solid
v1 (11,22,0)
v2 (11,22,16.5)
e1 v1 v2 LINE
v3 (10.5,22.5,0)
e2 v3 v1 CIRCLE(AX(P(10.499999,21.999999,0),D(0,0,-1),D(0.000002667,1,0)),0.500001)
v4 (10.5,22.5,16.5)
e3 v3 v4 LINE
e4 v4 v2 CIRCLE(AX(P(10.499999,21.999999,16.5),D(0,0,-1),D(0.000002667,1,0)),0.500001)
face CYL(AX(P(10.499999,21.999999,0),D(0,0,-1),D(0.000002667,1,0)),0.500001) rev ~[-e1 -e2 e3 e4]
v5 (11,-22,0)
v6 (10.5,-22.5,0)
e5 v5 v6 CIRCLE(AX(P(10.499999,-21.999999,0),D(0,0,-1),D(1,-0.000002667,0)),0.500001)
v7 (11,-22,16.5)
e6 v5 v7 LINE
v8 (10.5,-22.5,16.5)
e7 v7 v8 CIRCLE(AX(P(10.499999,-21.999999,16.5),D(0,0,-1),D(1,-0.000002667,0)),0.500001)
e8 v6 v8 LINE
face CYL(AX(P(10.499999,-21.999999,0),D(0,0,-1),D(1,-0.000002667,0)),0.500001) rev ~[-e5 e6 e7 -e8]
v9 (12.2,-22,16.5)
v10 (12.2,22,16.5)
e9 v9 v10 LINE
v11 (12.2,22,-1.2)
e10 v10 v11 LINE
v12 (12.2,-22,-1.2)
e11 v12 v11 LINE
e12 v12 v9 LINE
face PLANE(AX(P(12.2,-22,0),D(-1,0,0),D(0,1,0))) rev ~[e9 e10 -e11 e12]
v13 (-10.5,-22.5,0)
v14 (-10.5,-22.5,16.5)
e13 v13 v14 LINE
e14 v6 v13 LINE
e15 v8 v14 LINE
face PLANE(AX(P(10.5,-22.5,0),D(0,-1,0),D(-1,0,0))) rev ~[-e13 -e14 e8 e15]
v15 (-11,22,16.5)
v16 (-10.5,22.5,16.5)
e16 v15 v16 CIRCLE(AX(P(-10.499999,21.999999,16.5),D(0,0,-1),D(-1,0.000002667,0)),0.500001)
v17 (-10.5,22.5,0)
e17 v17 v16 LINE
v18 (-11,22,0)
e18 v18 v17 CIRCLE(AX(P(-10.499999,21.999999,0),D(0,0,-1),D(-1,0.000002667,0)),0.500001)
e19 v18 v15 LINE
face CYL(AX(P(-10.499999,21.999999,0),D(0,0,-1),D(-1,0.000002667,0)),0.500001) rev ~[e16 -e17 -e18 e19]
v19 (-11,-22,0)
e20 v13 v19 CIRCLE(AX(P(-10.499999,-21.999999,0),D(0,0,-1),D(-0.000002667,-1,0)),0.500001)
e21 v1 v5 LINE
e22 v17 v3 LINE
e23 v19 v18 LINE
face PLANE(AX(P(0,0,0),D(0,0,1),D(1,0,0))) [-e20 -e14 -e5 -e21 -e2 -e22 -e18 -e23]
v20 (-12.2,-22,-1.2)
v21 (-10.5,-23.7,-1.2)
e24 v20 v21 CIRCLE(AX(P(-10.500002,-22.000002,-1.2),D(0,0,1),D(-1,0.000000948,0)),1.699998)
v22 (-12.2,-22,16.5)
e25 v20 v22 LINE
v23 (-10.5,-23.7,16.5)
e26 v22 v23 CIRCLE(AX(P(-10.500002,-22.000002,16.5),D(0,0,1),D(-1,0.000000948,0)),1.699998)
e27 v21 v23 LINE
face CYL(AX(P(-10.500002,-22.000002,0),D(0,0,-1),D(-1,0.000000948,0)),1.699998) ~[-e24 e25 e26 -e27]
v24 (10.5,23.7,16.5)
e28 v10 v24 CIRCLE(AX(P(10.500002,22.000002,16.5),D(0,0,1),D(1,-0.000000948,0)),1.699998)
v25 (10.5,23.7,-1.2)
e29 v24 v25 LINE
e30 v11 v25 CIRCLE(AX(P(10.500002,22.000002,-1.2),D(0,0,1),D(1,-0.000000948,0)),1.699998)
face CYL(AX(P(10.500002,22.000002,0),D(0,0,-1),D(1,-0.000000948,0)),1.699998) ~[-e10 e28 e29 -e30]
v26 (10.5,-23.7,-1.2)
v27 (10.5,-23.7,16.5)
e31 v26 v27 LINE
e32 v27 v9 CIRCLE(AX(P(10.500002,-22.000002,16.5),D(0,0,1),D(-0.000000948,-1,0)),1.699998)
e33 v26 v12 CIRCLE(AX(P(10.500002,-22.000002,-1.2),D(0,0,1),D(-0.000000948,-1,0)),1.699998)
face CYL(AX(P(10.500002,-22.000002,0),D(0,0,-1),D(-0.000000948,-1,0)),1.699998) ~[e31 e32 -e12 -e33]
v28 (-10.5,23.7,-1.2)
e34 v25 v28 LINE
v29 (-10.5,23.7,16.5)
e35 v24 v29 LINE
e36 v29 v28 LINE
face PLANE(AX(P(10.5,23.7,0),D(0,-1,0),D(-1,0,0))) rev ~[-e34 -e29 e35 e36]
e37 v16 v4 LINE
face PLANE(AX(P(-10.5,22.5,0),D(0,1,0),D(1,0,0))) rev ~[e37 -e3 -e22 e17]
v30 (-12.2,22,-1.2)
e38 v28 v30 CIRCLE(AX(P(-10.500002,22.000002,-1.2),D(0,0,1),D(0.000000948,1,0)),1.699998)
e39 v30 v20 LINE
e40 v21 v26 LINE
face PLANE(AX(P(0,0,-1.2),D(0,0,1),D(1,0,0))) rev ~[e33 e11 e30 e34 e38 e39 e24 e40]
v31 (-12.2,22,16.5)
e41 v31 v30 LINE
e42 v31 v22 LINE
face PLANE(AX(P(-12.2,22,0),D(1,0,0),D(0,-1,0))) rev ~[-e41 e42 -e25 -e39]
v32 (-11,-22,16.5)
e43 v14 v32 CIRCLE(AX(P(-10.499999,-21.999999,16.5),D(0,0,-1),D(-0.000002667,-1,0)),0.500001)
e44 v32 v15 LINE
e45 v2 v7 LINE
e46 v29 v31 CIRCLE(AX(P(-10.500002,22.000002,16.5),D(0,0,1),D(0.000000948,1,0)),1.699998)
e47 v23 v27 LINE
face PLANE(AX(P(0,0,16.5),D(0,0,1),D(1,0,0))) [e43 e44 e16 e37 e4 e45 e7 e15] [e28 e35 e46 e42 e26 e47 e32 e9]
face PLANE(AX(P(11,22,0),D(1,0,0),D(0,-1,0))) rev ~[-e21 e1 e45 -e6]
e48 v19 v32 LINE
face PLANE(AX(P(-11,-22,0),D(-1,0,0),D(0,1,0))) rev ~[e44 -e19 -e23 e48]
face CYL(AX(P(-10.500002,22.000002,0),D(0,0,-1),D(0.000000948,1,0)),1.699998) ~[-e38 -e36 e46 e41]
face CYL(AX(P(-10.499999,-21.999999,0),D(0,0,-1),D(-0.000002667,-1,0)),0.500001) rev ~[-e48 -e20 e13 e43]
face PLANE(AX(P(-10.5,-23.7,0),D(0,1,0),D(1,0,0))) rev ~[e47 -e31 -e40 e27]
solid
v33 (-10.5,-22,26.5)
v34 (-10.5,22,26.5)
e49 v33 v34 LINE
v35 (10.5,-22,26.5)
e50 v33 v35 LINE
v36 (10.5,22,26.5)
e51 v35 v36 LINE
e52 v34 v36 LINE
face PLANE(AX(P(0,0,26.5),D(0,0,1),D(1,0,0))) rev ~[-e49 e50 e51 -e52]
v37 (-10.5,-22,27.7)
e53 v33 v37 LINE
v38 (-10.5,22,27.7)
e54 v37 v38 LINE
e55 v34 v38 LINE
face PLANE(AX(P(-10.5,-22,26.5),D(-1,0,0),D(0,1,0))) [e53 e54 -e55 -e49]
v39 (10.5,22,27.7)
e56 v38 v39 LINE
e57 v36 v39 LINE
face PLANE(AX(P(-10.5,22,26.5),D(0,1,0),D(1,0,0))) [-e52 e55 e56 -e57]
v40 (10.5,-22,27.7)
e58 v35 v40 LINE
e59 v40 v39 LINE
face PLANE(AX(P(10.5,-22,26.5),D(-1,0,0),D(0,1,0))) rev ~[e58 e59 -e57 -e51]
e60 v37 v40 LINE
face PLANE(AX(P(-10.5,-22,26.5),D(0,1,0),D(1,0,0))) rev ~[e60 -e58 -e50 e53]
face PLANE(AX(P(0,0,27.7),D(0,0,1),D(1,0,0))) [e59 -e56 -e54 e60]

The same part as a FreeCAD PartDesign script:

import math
import FreeCAD as App
import Part
import Sketcher

V = App.Vector
Q = App.Units.Quantity


def add_polygon(sketch, points):
    """Adds a closed chain of lines whose ends are joined by coincident constraints."""
    first, n = sketch.GeometryCount, len(points)
    for a, b in zip(points, points[1:] + points[:1]):
        sketch.addGeometry(Part.LineSegment(App.Vector(*a, 0), App.Vector(*b, 0)), False)
    for i in range(n):
        sketch.addConstraint(Sketcher.Constraint("Coincident", first + i, 2, first + (i + 1) % n, 1))

doc = App.newDocument("Part")
body = doc.addObject("PartDesign::Body", "Body")

sketch1 = doc.addObject("Sketcher::SketchObject", "Sketch")
body.addObject(sketch1)
sketch1.AttachmentSupport = (doc.XY_Plane, [""])
sketch1.MapMode = "FlatFace"
sketch1.addGeometry([
    Part.LineSegment(V(-12.2, 22, 0), V(-12.2, -22, 0)),
    Part.ArcOfCircle(Part.Circle(V(-10.5, -22, 0), V(0, 0, 1), 1.7), math.radians(180), math.radians(270)),
    Part.LineSegment(V(-10.5, -23.7, 0), V(10.5, -23.7, 0)),
    Part.ArcOfCircle(Part.Circle(V(10.5, -22, 0), V(0, 0, 1), 1.7), math.radians(-90), math.radians(0)),
    Part.LineSegment(V(12.2, -22, 0), V(12.2, 22, 0)),
    Part.ArcOfCircle(Part.Circle(V(10.5, 22, 0), V(0, 0, 1), 1.7), math.radians(0), math.radians(90)),
    Part.LineSegment(V(10.5, 23.7, 0), V(-10.5, 23.7, 0)),
    Part.ArcOfCircle(Part.Circle(V(-10.5, 22, 0), V(0, 0, 1), 1.7), math.radians(90), math.radians(180)),
], False)
sketch1.addConstraint([
    Sketcher.Constraint("Tangent", 0, 2, 1, 1),
    Sketcher.Constraint("Tangent", 1, 2, 2, 1),
    Sketcher.Constraint("Tangent", 2, 2, 3, 1),
    Sketcher.Constraint("Tangent", 3, 2, 4, 1),
    Sketcher.Constraint("Tangent", 4, 2, 5, 1),
    Sketcher.Constraint("Tangent", 5, 2, 6, 1),
    Sketcher.Constraint("Tangent", 6, 2, 7, 1),
    Sketcher.Constraint("Tangent", 7, 2, 0, 1),
    Sketcher.Constraint("Vertical", 0),
    Sketcher.Constraint("Horizontal", 2),
    Sketcher.Constraint("Vertical", 4),
    Sketcher.Constraint("Horizontal", 6),
    Sketcher.Constraint("Equal", 1, 3),
    Sketcher.Constraint("Equal", 3, 5),
    Sketcher.Constraint("Equal", 5, 7),
    Sketcher.Constraint("Symmetric", 1, 3, 5, 3, -1, 1),
    Sketcher.Constraint("Radius", 1, Q("1.699998 mm")),
    Sketcher.Constraint("DistanceX", 2, 1, 2, 2, Q("21 mm")),
    Sketcher.Constraint("DistanceY", 0, 2, 0, 1, Q("44 mm")),
])
pad1 = doc.addObject("PartDesign::Pad", "Pad")
body.addObject(pad1)
pad1.Profile = sketch1
pad1.Length = 1.2
pad1.Reversed = True

sketch2 = doc.addObject("Sketcher::SketchObject", "Sketch001")
body.addObject(sketch2)
sketch2.AttachmentSupport = (doc.XY_Plane, [""])
sketch2.MapMode = "FlatFace"
sketch2.addGeometry([
    Part.LineSegment(V(-12.2, 22, 0), V(-12.2, -22, 0)),
    Part.ArcOfCircle(Part.Circle(V(-10.5, -22, 0), V(0, 0, 1), 1.7), math.radians(180), math.radians(270)),
    Part.LineSegment(V(-10.5, -23.7, 0), V(10.5, -23.7, 0)),
    Part.ArcOfCircle(Part.Circle(V(10.5, -22, 0), V(0, 0, 1), 1.7), math.radians(-90), math.radians(0)),
    Part.LineSegment(V(12.2, -22, 0), V(12.2, 22, 0)),
    Part.ArcOfCircle(Part.Circle(V(10.5, 22, 0), V(0, 0, 1), 1.7), math.radians(0), math.radians(90)),
    Part.LineSegment(V(10.5, 23.7, 0), V(-10.5, 23.7, 0)),
    Part.ArcOfCircle(Part.Circle(V(-10.5, 22, 0), V(0, 0, 1), 1.7), math.radians(90), math.radians(180)),
    Part.LineSegment(V(11, 22, 0), V(11, -22, 0)),
    Part.ArcOfCircle(Part.Circle(V(10.5, -22, 0), V(0, 0, 1), 0.5), math.radians(-90), math.radians(0)),
    Part.LineSegment(V(10.5, -22.5, 0), V(-10.5, -22.5, 0)),
    Part.ArcOfCircle(Part.Circle(V(-10.5, -22, 0), V(0, 0, 1), 0.5), math.radians(-180), math.radians(-90)),
    Part.LineSegment(V(-11, -22, 0), V(-11, 22, 0)),
    Part.ArcOfCircle(Part.Circle(V(-10.5, 22, 0), V(0, 0, 1), 0.5), math.radians(90), math.radians(180)),
    Part.LineSegment(V(-10.5, 22.5, 0), V(10.5, 22.5, 0)),
    Part.ArcOfCircle(Part.Circle(V(10.5, 22, 0), V(0, 0, 1), 0.5), math.radians(0), math.radians(90)),
], False)
sketch2.addConstraint([
    Sketcher.Constraint("Tangent", 0, 2, 1, 1),
    Sketcher.Constraint("Tangent", 1, 2, 2, 1),
    Sketcher.Constraint("Tangent", 2, 2, 3, 1),
    Sketcher.Constraint("Tangent", 3, 2, 4, 1),
    Sketcher.Constraint("Tangent", 4, 2, 5, 1),
    Sketcher.Constraint("Tangent", 5, 2, 6, 1),
    Sketcher.Constraint("Tangent", 6, 2, 7, 1),
    Sketcher.Constraint("Tangent", 7, 2, 0, 1),
    Sketcher.Constraint("Coincident", 8, 2, 9, 2),
    Sketcher.Constraint("Coincident", 9, 1, 10, 1),
    Sketcher.Constraint("Coincident", 10, 2, 11, 2),
    Sketcher.Constraint("Coincident", 11, 1, 12, 1),
    Sketcher.Constraint("Coincident", 12, 2, 13, 2),
    Sketcher.Constraint("Coincident", 13, 1, 14, 1),
    Sketcher.Constraint("Coincident", 14, 2, 15, 2),
    Sketcher.Constraint("Coincident", 15, 1, 8, 1),
    Sketcher.Constraint("Vertical", 0),
    Sketcher.Constraint("Horizontal", 2),
    Sketcher.Constraint("Vertical", 4),
    Sketcher.Constraint("Horizontal", 6),
    Sketcher.Constraint("Vertical", 8),
    Sketcher.Constraint("Horizontal", 10),
    Sketcher.Constraint("Vertical", 12),
    Sketcher.Constraint("Horizontal", 14),
    Sketcher.Constraint("Coincident", 9, 3, 3, 3),
    Sketcher.Constraint("Coincident", 11, 3, 1, 3),
    Sketcher.Constraint("Coincident", 13, 3, 7, 3),
    Sketcher.Constraint("Equal", 1, 3),
    Sketcher.Constraint("Equal", 3, 5),
    Sketcher.Constraint("Equal", 5, 7),
    Sketcher.Constraint("Equal", 13, 15),
    Sketcher.Constraint("Symmetric", 1, 3, 5, 3, -1, 1),
    Sketcher.Constraint("Horizontal", 3, 2, 8, 2),
    Sketcher.Constraint("Horizontal", 8, 2, 11, 1),
    Sketcher.Constraint("Horizontal", 7, 2, 12, 2),
    Sketcher.Constraint("Horizontal", 12, 2, 15, 1),
    Sketcher.Constraint("Vertical", 5, 2, 9, 1),
    Sketcher.Constraint("Vertical", 6, 2, 10, 2),
    Sketcher.Constraint("Vertical", 10, 2, 13, 1),
    Sketcher.Constraint("Vertical", 9, 1, 14, 2),
    Sketcher.Constraint("Radius", 1, Q("1.699998 mm")),
    Sketcher.Constraint("Radius", 9, Q("0.500001 mm")),
    Sketcher.Constraint("DistanceX", 2, 1, 2, 2, Q("21 mm")),
    Sketcher.Constraint("DistanceY", 0, 2, 0, 1, Q("44 mm")),
])
pad2 = doc.addObject("PartDesign::Pad", "Pad001")
body.addObject(pad2)
pad2.Profile = sketch2
pad2.Length = 16.5
body2 = doc.addObject("PartDesign::Body", "Body001")

sketch3 = doc.addObject("Sketcher::SketchObject", "Sketch002")
body2.addObject(sketch3)
sketch3.AttachmentSupport = (doc.getObject("XY_Plane001"), [""])
sketch3.MapMode = "FlatFace"
sketch3.AttachmentOffset = App.Placement(V(0, 0, 26.5), App.Rotation())
add_polygon(sketch3, [(-10, 22), (-10, -22), (10, -22), (10, 22)])
sketch3.addConstraint([
    Sketcher.Constraint("Vertical", 0),
    Sketcher.Constraint("Horizontal", 1),
    Sketcher.Constraint("Vertical", 2),
    Sketcher.Constraint("Horizontal", 3),
    Sketcher.Constraint("Symmetric", 0, 2, 2, 2, -1, 1),
    Sketcher.Constraint("DistanceX", 1, 1, 1, 2, Q("21 mm")),
    Sketcher.Constraint("DistanceY", 0, 2, 0, 1, Q("44 mm")),
])
pad3 = doc.addObject("PartDesign::Pad", "Pad002")
body2.addObject(pad3)
pad3.Profile = sketch3
pad3.Length = 1.2

doc.recompute()
